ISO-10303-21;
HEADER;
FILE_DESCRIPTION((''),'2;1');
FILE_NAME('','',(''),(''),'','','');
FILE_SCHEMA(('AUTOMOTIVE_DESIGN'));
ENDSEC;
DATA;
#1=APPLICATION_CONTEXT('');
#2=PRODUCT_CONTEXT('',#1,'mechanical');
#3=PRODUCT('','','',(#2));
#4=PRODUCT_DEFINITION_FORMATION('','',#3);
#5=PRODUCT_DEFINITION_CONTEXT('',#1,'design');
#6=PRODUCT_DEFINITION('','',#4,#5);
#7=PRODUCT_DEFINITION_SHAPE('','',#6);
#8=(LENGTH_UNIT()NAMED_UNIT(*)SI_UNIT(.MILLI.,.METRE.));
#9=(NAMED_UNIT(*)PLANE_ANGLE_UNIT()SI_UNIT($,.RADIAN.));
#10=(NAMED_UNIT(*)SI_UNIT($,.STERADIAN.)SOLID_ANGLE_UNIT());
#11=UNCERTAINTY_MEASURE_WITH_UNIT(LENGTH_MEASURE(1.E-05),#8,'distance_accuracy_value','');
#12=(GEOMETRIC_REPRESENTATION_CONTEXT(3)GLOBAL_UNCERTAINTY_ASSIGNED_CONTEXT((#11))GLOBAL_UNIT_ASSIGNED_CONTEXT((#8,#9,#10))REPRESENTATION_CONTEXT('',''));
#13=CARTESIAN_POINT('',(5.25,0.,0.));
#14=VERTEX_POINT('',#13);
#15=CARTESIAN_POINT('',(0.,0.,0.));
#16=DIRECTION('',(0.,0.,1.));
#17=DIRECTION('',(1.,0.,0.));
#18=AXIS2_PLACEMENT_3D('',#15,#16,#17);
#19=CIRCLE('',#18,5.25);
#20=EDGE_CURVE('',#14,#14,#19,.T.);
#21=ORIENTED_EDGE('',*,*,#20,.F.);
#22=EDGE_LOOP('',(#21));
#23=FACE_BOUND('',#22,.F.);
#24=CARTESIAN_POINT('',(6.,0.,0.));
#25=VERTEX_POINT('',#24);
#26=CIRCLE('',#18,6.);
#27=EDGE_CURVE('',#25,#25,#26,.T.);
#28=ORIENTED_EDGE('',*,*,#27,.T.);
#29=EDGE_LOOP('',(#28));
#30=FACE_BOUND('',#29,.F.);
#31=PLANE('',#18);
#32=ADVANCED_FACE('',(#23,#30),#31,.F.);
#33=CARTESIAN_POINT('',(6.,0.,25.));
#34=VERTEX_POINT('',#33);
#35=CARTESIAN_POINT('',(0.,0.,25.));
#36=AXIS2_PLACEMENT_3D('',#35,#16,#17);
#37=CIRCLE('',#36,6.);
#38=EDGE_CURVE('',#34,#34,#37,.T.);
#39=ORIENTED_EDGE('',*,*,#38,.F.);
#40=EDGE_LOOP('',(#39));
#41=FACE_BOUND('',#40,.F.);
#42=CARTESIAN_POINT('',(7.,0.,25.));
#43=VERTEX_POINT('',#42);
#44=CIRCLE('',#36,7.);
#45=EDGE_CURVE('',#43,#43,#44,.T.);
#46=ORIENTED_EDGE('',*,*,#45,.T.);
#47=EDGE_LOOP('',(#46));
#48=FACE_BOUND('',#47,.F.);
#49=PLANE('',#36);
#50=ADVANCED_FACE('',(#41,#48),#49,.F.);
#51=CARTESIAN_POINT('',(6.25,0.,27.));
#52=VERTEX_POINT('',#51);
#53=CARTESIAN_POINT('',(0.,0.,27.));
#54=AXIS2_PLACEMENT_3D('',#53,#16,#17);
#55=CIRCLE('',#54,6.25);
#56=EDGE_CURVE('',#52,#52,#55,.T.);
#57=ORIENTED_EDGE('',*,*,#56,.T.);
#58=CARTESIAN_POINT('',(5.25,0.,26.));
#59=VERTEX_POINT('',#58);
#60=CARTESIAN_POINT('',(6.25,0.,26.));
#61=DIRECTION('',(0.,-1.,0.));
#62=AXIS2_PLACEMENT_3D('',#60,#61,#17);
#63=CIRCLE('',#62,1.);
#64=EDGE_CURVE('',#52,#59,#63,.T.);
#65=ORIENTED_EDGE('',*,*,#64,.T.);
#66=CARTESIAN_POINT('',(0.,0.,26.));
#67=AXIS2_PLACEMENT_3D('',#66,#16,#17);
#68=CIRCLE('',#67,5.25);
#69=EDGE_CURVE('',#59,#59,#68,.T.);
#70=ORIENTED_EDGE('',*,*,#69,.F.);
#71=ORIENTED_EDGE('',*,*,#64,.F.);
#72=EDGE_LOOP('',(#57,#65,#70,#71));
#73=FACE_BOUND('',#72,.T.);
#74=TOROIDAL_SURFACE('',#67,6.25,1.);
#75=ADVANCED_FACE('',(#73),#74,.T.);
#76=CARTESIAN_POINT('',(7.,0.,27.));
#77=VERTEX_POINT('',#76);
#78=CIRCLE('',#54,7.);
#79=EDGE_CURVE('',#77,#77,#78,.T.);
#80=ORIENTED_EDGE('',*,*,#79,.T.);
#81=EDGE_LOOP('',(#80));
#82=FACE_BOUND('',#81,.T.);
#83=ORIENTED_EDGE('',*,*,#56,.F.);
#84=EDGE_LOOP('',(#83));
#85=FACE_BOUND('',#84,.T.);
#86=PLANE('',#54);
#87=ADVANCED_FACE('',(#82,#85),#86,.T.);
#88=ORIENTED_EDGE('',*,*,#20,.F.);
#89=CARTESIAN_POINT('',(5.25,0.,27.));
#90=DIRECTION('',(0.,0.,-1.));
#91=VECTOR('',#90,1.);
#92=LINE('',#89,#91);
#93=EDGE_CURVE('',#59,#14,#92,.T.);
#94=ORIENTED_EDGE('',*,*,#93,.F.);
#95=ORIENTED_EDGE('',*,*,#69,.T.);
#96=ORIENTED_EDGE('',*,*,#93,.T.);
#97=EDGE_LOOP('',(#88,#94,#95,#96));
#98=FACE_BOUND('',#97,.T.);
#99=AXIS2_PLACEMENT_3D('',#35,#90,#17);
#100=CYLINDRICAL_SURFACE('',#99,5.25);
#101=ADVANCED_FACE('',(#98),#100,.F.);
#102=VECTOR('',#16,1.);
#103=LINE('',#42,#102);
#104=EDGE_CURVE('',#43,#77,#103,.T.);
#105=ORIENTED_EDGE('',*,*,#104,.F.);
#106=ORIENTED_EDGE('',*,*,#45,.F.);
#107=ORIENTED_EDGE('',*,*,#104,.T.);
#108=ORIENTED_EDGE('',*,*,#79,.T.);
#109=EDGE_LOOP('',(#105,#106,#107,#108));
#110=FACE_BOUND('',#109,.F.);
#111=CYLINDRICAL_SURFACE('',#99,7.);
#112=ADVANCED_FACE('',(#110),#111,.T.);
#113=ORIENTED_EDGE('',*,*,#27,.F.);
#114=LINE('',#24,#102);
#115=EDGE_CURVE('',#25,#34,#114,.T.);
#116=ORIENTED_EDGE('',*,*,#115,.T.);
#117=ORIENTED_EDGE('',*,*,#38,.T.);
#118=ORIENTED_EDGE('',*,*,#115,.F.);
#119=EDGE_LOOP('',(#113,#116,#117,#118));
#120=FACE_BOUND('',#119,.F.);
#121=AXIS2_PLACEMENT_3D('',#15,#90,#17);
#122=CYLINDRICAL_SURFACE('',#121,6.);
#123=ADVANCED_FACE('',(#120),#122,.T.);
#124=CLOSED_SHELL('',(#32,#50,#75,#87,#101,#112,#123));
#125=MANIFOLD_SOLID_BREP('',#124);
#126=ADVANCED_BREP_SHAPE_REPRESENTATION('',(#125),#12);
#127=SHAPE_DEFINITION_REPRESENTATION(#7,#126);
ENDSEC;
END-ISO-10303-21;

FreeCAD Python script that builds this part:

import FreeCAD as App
import Part
import Sketcher

V = App.Vector


def edges_at(feature, points):
    """Names of the edges that pass closest to the given points."""
    edges = feature.Shape.Edges
    near = lambda p: min(range(len(edges)), key=lambda i: edges[i].distToShape(Part.Vertex(*p))[0])
    return sorted({f"Edge{near(p) + 1}" for p in points})

doc = App.newDocument("Part")
body = doc.addObject("PartDesign::Body", "Body")

sketch1 = body.newObject("Sketcher::SketchObject", "Sketch")
sketch1.AttachmentSupport = (doc.getObject("XY_Plane"), [""])
sketch1.MapMode = "FlatFace"
sketch1.addGeometry([
    Part.Circle(V(0, 0, 0), V(0, 0, 1), 6),
    Part.Circle(V(0, 0, 0), V(0, 0, 1), 5),
], False)
sketch1.addConstraint([
    Sketcher.Constraint("Coincident", 0, 3, -1, 1),
    Sketcher.Constraint("Coincident", 1, 3, -1, 1),
    Sketcher.Constraint("Diameter", 0, 12.0),
    Sketcher.Constraint("Diameter", 1, 10.5),
])
pad1 = body.newObject("PartDesign::Pad", "Pad")
pad1.Profile = sketch1
pad1.Length = 25

sketch2 = body.newObject("Sketcher::SketchObject", "Sketch001")
sketch2.AttachmentSupport = (doc.getObject("XY_Plane"), [""])
sketch2.MapMode = "FlatFace"
sketch2.AttachmentOffset = App.Placement(V(0, 0, 25), App.Rotation())
sketch2.addGeometry([
    Part.Circle(V(0, 0, 0), V(0, 0, 1), 7),
    Part.Circle(V(0, 0, 0), V(0, 0, 1), 5),
], False)
sketch2.addConstraint([
    Sketcher.Constraint("Coincident", 0, 3, -1, 1),
    Sketcher.Constraint("Coincident", 1, 3, -1, 1),
    Sketcher.Constraint("Diameter", 0, 14.0),
    Sketcher.Constraint("Diameter", 1, 10.5),
])
pad2 = body.newObject("PartDesign::Pad", "Pad001")
pad2.Profile = sketch2
pad2.Length = 2
doc.recompute()

fillet = body.newObject("PartDesign::Fillet", "Fillet")
fillet.Base = (pad2, edges_at(pad2, [(-5.25, 0, 27)]))
fillet.Radius = 1

doc.recompute()
